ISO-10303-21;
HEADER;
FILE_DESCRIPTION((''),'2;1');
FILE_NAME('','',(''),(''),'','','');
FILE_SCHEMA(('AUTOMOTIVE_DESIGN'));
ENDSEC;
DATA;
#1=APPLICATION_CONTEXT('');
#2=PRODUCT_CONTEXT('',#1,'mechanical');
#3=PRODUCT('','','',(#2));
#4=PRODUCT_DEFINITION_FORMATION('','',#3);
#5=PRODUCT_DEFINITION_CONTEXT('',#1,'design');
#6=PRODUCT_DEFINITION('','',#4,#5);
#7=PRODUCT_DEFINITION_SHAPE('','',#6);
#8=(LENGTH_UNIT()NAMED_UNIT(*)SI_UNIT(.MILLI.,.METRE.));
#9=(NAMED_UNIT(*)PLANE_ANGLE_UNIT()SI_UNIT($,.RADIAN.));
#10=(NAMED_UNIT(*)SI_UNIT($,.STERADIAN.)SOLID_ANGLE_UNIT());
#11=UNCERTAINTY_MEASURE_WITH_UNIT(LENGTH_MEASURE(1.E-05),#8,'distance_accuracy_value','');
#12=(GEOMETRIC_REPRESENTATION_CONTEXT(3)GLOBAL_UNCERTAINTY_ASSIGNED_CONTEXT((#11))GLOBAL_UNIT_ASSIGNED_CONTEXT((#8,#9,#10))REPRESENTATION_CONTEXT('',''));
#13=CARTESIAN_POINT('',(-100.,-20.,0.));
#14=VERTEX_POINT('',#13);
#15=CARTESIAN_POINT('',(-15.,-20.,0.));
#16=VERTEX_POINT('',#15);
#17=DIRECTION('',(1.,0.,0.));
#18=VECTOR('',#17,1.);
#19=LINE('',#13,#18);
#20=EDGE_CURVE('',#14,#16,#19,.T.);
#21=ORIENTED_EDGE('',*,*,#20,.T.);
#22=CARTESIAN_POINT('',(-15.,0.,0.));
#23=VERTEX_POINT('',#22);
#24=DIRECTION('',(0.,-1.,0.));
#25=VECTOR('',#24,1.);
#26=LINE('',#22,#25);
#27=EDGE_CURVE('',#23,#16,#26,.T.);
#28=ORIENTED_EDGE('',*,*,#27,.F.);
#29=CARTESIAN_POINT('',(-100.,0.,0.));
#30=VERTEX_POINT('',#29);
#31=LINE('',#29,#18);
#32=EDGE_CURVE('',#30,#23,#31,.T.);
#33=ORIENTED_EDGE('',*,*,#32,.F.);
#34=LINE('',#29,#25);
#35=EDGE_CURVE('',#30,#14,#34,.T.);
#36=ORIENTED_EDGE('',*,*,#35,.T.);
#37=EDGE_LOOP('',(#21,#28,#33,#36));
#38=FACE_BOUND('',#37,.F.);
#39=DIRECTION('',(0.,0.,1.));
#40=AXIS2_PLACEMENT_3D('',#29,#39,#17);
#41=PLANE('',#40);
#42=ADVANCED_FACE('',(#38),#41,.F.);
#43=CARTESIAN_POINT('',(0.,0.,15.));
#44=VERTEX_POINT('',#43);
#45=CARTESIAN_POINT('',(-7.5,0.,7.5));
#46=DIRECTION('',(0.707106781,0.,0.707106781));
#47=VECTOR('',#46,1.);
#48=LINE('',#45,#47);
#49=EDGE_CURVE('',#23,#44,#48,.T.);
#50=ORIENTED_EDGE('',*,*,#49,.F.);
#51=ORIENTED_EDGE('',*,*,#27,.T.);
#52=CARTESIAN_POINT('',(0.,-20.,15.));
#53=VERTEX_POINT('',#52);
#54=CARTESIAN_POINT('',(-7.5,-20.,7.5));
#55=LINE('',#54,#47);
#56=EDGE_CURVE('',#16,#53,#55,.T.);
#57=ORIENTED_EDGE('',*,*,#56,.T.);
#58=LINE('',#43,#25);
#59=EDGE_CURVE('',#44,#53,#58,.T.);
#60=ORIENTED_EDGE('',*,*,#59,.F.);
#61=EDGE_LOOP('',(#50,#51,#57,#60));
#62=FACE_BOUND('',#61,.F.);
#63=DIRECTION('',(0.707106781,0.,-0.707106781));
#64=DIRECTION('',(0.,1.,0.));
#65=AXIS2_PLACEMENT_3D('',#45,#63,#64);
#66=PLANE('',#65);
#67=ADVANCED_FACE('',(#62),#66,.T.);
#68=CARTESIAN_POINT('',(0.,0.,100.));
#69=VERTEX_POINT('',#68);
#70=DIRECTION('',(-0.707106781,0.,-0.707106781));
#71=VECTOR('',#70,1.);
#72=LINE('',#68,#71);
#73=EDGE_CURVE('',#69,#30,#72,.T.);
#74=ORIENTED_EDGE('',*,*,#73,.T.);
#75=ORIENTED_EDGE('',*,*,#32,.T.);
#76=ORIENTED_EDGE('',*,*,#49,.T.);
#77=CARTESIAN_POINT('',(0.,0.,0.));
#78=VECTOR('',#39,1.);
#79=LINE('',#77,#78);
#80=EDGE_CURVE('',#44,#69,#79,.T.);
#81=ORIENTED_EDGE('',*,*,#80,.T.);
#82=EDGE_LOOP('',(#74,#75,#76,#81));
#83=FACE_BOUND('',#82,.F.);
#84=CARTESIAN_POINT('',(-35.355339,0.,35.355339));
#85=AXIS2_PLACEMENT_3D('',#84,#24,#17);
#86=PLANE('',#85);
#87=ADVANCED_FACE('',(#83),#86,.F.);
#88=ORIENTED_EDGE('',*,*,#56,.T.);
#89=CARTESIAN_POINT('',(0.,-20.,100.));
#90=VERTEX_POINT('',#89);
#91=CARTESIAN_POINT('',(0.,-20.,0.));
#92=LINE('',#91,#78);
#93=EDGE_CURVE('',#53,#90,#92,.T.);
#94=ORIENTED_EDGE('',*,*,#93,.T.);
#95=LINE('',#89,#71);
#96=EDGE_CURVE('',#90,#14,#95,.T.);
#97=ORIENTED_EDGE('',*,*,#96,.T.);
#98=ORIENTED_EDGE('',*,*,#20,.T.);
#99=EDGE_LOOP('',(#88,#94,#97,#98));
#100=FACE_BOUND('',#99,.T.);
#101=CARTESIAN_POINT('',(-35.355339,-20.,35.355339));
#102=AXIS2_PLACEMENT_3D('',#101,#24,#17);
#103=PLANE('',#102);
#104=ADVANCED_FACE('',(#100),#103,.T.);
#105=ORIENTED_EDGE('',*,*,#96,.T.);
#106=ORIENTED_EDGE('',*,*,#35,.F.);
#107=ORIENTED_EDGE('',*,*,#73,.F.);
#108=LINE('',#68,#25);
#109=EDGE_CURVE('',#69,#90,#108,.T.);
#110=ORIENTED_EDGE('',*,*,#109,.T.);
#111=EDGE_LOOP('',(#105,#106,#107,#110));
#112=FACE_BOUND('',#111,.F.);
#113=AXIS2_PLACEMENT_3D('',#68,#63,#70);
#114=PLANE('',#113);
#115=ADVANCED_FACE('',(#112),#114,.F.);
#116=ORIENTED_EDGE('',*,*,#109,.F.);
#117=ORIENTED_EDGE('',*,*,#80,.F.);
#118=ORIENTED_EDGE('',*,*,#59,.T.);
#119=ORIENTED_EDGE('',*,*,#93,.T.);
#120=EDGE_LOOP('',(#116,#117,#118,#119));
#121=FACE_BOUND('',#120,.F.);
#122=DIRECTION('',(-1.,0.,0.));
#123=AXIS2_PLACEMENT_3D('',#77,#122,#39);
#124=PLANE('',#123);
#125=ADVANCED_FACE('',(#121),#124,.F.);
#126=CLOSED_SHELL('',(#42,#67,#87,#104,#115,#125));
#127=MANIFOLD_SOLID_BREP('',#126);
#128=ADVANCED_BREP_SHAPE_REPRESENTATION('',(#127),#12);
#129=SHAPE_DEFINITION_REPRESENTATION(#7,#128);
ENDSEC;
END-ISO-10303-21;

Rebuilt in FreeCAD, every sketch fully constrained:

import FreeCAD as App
import Part
import Sketcher

V = App.Vector


def edges_at(feature, points):
    """Names of the edges that pass closest to the given points."""
    edges = feature.Shape.Edges
    near = lambda p: min(range(len(edges)), key=lambda i: edges[i].distToShape(Part.Vertex(*p))[0])
    return sorted({f"Edge{near(p) + 1}" for p in points})


def add_polygon(sketch, points):
    """Adds a closed chain of lines whose ends are joined by coincident constraints."""
    first, n = sketch.GeometryCount, len(points)
    for a, b in zip(points, points[1:] + points[:1]):
        sketch.addGeometry(Part.LineSegment(App.Vector(*a, 0), App.Vector(*b, 0)), False)
    for i in range(n):
        sketch.addConstraint(Sketcher.Constraint("Coincident", first + i, 2, first + (i + 1) % n, 1))

doc = App.newDocument("Part")
body = doc.addObject("PartDesign::Body", "Body")

sketch1 = doc.addObject("Sketcher::SketchObject", "Sketch")
body.addObject(sketch1)
sketch1.AttachmentSupport = (doc.XZ_Plane, [""])
sketch1.MapMode = "FlatFace"
add_polygon(sketch1, [(-100, 0), (0, 0), (0, 100)])
sketch1.addConstraint(Sketcher.Constraint("Horizontal", 0))
sketch1.addConstraint(Sketcher.Constraint("Vertical", 1))
sketch1.addConstraint(Sketcher.Constraint("Coincident", 0, 2, -1, 1))
sketch1.addConstraint(Sketcher.Constraint("Equal", 0, 1))
sketch1.addConstraint(Sketcher.Constraint("DistanceX", 0, 1, 0, 2, 100.0))
pad1 = doc.addObject("PartDesign::Pad", "Pad")
body.addObject(pad1)
pad1.Profile = sketch1
pad1.Length = 20
doc.recompute()

chamfer = doc.addObject("PartDesign::Chamfer", "Chamfer")
body.addObject(chamfer)
chamfer.Base = (pad1, edges_at(pad1, [(0, -10, 0)]))
chamfer.Size = 15

doc.recompute()
